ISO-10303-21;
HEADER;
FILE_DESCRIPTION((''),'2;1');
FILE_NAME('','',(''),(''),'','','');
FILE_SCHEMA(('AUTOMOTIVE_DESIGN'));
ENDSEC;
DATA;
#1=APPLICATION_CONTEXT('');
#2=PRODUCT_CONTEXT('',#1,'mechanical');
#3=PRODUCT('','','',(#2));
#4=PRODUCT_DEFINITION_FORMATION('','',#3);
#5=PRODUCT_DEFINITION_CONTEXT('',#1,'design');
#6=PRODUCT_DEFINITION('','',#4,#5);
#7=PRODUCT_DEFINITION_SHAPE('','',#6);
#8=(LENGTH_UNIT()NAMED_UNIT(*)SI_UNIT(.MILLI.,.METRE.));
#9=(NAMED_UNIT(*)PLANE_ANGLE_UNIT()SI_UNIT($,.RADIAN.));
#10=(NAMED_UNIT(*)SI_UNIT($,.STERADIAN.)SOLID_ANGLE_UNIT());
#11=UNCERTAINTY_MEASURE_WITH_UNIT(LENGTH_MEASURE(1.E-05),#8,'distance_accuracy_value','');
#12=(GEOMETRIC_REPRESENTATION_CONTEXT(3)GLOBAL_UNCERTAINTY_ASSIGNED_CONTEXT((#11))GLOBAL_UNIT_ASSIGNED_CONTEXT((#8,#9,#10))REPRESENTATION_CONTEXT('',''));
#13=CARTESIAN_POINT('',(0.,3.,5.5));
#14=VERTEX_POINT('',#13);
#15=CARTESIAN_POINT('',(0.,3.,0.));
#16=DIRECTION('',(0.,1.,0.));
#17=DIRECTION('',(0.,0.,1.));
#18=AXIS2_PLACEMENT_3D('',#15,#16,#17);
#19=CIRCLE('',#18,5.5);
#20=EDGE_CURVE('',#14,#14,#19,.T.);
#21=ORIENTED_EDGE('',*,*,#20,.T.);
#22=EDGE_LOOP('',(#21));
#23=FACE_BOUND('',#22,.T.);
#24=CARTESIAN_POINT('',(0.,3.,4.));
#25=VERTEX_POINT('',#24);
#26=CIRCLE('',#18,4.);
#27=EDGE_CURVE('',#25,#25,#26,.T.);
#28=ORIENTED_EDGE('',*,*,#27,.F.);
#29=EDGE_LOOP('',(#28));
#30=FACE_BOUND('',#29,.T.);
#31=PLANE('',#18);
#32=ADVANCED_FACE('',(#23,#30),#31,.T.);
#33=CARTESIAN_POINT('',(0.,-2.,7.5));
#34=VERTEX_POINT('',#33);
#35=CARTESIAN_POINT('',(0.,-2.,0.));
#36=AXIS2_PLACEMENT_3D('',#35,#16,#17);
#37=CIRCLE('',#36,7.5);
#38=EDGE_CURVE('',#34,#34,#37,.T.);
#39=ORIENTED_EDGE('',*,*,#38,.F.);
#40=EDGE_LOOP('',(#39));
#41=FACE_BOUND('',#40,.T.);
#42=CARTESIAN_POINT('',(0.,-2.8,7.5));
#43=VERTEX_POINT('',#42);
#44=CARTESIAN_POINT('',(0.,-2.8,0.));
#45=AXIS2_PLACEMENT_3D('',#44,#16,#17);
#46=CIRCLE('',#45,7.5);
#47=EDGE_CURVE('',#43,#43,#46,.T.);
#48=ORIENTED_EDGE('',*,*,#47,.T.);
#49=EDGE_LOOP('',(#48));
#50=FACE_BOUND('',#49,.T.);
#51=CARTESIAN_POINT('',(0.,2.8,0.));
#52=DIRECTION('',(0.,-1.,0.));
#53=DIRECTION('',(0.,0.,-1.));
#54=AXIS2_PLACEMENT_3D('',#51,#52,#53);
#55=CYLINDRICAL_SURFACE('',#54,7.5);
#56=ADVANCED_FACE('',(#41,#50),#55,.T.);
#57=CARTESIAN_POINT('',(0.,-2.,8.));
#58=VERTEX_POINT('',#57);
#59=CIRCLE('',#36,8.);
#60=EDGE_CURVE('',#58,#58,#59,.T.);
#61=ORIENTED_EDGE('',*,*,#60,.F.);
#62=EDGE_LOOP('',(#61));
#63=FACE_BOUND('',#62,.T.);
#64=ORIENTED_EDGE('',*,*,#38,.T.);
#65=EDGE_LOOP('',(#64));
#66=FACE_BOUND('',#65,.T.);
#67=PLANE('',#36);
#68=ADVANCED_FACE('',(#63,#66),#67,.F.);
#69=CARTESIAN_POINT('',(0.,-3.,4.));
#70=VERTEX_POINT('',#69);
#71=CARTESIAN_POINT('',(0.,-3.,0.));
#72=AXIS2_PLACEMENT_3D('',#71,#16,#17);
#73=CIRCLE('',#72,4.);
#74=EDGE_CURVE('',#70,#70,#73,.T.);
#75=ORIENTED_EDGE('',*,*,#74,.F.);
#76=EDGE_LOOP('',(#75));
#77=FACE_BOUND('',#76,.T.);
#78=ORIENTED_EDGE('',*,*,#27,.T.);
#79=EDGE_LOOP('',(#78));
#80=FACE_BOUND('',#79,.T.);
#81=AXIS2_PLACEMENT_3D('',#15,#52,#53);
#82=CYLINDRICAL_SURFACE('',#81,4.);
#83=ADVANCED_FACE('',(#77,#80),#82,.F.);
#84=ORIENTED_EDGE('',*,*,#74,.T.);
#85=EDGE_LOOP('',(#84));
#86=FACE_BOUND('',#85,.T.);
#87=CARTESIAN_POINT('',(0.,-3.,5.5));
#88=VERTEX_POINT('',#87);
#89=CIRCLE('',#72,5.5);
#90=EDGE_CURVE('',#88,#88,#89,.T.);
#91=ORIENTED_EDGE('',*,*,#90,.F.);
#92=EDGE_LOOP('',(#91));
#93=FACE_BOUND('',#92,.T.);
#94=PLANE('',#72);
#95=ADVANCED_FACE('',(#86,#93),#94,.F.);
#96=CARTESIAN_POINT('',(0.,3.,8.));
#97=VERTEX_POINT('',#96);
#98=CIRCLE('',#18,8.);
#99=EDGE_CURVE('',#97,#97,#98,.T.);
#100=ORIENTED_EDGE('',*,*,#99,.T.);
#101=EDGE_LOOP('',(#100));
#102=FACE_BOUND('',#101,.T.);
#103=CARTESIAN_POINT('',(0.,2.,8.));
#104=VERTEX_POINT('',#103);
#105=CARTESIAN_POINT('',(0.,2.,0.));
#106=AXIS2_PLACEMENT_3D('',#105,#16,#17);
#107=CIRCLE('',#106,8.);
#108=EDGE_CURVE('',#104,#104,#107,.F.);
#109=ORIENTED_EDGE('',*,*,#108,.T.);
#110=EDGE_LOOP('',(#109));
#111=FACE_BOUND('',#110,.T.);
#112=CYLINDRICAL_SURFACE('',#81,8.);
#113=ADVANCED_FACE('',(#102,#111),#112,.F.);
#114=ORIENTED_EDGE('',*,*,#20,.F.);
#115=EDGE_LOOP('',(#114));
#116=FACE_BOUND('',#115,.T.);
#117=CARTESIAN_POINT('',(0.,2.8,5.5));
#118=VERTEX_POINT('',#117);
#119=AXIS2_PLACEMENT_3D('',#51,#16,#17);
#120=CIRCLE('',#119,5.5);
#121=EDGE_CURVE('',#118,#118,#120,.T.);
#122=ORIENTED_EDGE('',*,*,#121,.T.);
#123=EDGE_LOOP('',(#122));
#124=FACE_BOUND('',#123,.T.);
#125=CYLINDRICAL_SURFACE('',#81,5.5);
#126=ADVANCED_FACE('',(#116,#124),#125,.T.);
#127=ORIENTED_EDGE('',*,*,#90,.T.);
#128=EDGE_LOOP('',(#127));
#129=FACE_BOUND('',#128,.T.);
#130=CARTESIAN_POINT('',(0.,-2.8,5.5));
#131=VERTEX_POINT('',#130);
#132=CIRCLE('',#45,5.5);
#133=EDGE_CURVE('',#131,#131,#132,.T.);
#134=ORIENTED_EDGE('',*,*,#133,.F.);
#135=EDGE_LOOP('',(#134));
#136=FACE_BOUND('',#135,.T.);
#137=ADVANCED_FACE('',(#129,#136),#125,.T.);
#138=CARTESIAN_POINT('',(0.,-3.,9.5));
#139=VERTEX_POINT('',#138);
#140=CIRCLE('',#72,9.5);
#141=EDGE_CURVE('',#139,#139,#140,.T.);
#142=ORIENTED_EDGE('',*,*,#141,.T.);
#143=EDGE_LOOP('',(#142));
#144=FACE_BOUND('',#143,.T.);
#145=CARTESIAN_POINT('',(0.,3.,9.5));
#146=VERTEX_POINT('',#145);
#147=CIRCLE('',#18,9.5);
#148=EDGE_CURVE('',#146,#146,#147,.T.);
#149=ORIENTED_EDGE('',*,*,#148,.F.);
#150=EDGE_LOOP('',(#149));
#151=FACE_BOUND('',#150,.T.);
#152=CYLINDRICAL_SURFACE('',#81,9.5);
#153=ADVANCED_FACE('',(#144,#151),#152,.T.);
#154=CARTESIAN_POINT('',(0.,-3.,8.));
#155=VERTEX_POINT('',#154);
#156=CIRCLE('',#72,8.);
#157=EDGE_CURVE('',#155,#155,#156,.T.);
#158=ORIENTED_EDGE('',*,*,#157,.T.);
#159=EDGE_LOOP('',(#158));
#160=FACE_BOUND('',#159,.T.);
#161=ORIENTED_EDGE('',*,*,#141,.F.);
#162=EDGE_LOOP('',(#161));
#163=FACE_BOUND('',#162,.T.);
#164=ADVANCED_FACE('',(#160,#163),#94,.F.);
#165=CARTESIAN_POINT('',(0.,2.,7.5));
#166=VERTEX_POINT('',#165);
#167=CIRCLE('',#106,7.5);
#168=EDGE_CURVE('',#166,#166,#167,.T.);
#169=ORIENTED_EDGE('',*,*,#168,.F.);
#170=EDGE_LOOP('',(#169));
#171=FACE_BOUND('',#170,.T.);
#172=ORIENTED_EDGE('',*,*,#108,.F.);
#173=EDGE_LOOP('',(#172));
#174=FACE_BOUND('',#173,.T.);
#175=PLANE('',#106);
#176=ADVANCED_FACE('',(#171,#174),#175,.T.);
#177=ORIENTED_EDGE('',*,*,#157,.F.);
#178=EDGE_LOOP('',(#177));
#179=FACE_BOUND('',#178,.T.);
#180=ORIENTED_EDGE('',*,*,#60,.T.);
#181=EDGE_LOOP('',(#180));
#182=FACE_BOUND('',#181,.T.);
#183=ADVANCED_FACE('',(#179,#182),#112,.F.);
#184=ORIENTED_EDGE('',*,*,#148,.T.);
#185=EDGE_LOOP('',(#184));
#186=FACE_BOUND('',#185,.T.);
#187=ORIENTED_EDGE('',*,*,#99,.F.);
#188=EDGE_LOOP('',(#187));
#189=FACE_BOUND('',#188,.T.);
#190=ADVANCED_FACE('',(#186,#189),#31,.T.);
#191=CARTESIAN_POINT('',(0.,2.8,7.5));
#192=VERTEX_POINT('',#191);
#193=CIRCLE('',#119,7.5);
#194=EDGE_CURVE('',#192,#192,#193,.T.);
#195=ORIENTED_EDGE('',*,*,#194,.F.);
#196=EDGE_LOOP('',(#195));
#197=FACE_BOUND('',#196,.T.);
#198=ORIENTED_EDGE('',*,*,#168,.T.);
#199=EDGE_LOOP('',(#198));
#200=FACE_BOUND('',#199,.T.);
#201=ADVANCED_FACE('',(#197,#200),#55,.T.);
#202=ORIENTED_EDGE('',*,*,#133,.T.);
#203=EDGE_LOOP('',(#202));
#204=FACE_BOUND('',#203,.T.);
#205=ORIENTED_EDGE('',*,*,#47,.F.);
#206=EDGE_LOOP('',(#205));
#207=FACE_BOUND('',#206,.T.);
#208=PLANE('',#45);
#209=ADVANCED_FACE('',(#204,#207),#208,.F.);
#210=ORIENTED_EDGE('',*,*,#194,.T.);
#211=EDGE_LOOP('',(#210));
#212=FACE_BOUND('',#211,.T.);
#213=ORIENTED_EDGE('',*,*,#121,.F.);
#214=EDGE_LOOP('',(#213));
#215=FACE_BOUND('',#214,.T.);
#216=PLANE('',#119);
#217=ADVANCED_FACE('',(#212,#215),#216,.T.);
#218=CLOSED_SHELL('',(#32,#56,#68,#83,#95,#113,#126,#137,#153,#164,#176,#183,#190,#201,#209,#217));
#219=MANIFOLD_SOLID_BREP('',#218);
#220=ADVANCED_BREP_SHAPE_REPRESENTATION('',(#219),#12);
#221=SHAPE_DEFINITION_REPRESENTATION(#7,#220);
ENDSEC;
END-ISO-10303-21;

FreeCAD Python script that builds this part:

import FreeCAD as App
import Part
import Sketcher

V = App.Vector
Q = App.Units.Quantity

doc = App.newDocument("Part")
body = doc.addObject("PartDesign::Body", "Body")

# Sketch on XZ plane
sketch1 = body.newObject("Sketcher::SketchObject", "Sketch")
sketch1.AttachmentSupport = (doc.getObject("XZ_Plane"), [""])
sketch1.MapMode = "FlatFace"
sketch1.addGeometry(Part.Circle(V(0, 0, 0), V(0, 0, 1), 5.5), False)
sketch1.addGeometry(Part.Circle(V(0, 0, 0), V(0, 0, 1), 4), False)
sketch1.addConstraint(Sketcher.Constraint("Coincident", 0, 3, -1, 1))
sketch1.addConstraint(Sketcher.Constraint("Coincident", 1, 3, -1, 1))
sketch1.addConstraint(Sketcher.Constraint("Diameter", 0, Q("11 mm")))
sketch1.addConstraint(Sketcher.Constraint("Diameter", 1, Q("8 mm")))
pad1 = body.newObject("PartDesign::Pad", "Pad")
pad1.Profile = sketch1
pad1.Length = 6
pad1.Midplane = True

# Sketch on XZ plane
sketch2 = body.newObject("Sketcher::SketchObject", "Sketch001")
sketch2.AttachmentSupport = (doc.getObject("XZ_Plane"), [""])
sketch2.MapMode = "FlatFace"
sketch2.addGeometry(Part.Circle(V(0, 0, 0), V(0, 0, 1), 8), False)
sketch2.addGeometry(Part.Circle(V(0, 0, 0), V(0, 0, 1), 6), False)
sketch2.addConstraint(Sketcher.Constraint("Coincident", 0, 3, -1, 1))
sketch2.addConstraint(Sketcher.Constraint("Coincident", 1, 3, -1, 1))
sketch2.addConstraint(Sketcher.Constraint("Diameter", 0, Q("15 mm")))
sketch2.addConstraint(Sketcher.Constraint("Diameter", 1, Q("11 mm")))
pad2 = body.newObject("PartDesign::Pad", "Pad001")
pad2.Profile = sketch2
pad2.Length = 5.6
pad2.Midplane = True

# Sketch on XZ plane
sketch3 = body.newObject("Sketcher::SketchObject", "Sketch002")
sketch3.AttachmentSupport = (doc.getObject("XZ_Plane"), [""])
sketch3.MapMode = "FlatFace"
sketch3.addGeometry(Part.Circle(V(0, 0, 0), V(0, 0, 1), 8), False)
sketch3.addGeometry(Part.Circle(V(0, 0, 0), V(0, 0, 1), 8), False)
sketch3.addConstraint(Sketcher.Constraint("Coincident", 0, 3, -1, 1))
sketch3.addConstraint(Sketcher.Constraint("Coincident", 1, 3, -1, 1))
sketch3.addConstraint(Sketcher.Constraint("Diameter", 0, Q("16 mm")))
sketch3.addConstraint(Sketcher.Constraint("Diameter", 1, Q("15 mm")))
pad3 = body.newObject("PartDesign::Pad", "Pad002")
pad3.Profile = sketch3
pad3.Length = 4
pad3.Midplane = True

# Sketch on XZ plane
sketch4 = body.newObject("Sketcher::SketchObject", "Sketch003")
sketch4.AttachmentSupport = (doc.getObject("XZ_Plane"), [""])
sketch4.MapMode = "FlatFace"
sketch4.addGeometry(Part.Circle(V(0, 0, 0), V(0, 0, 1), 10), False)
sketch4.addGeometry(Part.Circle(V(0, 0, 0), V(0, 0, 1), 8), False)
sketch4.addConstraint(Sketcher.Constraint("Coincident", 0, 3, -1, 1))
sketch4.addConstraint(Sketcher.Constraint("Coincident", 1, 3, -1, 1))
sketch4.addConstraint(Sketcher.Constraint("Diameter", 0, Q("19 mm")))
sketch4.addConstraint(Sketcher.Constraint("Diameter", 1, Q("16 mm")))
pad4 = body.newObject("PartDesign::Pad", "Pad003")
pad4.Profile = sketch4
pad4.Length = 6
pad4.Midplane = True

doc.recompute()
